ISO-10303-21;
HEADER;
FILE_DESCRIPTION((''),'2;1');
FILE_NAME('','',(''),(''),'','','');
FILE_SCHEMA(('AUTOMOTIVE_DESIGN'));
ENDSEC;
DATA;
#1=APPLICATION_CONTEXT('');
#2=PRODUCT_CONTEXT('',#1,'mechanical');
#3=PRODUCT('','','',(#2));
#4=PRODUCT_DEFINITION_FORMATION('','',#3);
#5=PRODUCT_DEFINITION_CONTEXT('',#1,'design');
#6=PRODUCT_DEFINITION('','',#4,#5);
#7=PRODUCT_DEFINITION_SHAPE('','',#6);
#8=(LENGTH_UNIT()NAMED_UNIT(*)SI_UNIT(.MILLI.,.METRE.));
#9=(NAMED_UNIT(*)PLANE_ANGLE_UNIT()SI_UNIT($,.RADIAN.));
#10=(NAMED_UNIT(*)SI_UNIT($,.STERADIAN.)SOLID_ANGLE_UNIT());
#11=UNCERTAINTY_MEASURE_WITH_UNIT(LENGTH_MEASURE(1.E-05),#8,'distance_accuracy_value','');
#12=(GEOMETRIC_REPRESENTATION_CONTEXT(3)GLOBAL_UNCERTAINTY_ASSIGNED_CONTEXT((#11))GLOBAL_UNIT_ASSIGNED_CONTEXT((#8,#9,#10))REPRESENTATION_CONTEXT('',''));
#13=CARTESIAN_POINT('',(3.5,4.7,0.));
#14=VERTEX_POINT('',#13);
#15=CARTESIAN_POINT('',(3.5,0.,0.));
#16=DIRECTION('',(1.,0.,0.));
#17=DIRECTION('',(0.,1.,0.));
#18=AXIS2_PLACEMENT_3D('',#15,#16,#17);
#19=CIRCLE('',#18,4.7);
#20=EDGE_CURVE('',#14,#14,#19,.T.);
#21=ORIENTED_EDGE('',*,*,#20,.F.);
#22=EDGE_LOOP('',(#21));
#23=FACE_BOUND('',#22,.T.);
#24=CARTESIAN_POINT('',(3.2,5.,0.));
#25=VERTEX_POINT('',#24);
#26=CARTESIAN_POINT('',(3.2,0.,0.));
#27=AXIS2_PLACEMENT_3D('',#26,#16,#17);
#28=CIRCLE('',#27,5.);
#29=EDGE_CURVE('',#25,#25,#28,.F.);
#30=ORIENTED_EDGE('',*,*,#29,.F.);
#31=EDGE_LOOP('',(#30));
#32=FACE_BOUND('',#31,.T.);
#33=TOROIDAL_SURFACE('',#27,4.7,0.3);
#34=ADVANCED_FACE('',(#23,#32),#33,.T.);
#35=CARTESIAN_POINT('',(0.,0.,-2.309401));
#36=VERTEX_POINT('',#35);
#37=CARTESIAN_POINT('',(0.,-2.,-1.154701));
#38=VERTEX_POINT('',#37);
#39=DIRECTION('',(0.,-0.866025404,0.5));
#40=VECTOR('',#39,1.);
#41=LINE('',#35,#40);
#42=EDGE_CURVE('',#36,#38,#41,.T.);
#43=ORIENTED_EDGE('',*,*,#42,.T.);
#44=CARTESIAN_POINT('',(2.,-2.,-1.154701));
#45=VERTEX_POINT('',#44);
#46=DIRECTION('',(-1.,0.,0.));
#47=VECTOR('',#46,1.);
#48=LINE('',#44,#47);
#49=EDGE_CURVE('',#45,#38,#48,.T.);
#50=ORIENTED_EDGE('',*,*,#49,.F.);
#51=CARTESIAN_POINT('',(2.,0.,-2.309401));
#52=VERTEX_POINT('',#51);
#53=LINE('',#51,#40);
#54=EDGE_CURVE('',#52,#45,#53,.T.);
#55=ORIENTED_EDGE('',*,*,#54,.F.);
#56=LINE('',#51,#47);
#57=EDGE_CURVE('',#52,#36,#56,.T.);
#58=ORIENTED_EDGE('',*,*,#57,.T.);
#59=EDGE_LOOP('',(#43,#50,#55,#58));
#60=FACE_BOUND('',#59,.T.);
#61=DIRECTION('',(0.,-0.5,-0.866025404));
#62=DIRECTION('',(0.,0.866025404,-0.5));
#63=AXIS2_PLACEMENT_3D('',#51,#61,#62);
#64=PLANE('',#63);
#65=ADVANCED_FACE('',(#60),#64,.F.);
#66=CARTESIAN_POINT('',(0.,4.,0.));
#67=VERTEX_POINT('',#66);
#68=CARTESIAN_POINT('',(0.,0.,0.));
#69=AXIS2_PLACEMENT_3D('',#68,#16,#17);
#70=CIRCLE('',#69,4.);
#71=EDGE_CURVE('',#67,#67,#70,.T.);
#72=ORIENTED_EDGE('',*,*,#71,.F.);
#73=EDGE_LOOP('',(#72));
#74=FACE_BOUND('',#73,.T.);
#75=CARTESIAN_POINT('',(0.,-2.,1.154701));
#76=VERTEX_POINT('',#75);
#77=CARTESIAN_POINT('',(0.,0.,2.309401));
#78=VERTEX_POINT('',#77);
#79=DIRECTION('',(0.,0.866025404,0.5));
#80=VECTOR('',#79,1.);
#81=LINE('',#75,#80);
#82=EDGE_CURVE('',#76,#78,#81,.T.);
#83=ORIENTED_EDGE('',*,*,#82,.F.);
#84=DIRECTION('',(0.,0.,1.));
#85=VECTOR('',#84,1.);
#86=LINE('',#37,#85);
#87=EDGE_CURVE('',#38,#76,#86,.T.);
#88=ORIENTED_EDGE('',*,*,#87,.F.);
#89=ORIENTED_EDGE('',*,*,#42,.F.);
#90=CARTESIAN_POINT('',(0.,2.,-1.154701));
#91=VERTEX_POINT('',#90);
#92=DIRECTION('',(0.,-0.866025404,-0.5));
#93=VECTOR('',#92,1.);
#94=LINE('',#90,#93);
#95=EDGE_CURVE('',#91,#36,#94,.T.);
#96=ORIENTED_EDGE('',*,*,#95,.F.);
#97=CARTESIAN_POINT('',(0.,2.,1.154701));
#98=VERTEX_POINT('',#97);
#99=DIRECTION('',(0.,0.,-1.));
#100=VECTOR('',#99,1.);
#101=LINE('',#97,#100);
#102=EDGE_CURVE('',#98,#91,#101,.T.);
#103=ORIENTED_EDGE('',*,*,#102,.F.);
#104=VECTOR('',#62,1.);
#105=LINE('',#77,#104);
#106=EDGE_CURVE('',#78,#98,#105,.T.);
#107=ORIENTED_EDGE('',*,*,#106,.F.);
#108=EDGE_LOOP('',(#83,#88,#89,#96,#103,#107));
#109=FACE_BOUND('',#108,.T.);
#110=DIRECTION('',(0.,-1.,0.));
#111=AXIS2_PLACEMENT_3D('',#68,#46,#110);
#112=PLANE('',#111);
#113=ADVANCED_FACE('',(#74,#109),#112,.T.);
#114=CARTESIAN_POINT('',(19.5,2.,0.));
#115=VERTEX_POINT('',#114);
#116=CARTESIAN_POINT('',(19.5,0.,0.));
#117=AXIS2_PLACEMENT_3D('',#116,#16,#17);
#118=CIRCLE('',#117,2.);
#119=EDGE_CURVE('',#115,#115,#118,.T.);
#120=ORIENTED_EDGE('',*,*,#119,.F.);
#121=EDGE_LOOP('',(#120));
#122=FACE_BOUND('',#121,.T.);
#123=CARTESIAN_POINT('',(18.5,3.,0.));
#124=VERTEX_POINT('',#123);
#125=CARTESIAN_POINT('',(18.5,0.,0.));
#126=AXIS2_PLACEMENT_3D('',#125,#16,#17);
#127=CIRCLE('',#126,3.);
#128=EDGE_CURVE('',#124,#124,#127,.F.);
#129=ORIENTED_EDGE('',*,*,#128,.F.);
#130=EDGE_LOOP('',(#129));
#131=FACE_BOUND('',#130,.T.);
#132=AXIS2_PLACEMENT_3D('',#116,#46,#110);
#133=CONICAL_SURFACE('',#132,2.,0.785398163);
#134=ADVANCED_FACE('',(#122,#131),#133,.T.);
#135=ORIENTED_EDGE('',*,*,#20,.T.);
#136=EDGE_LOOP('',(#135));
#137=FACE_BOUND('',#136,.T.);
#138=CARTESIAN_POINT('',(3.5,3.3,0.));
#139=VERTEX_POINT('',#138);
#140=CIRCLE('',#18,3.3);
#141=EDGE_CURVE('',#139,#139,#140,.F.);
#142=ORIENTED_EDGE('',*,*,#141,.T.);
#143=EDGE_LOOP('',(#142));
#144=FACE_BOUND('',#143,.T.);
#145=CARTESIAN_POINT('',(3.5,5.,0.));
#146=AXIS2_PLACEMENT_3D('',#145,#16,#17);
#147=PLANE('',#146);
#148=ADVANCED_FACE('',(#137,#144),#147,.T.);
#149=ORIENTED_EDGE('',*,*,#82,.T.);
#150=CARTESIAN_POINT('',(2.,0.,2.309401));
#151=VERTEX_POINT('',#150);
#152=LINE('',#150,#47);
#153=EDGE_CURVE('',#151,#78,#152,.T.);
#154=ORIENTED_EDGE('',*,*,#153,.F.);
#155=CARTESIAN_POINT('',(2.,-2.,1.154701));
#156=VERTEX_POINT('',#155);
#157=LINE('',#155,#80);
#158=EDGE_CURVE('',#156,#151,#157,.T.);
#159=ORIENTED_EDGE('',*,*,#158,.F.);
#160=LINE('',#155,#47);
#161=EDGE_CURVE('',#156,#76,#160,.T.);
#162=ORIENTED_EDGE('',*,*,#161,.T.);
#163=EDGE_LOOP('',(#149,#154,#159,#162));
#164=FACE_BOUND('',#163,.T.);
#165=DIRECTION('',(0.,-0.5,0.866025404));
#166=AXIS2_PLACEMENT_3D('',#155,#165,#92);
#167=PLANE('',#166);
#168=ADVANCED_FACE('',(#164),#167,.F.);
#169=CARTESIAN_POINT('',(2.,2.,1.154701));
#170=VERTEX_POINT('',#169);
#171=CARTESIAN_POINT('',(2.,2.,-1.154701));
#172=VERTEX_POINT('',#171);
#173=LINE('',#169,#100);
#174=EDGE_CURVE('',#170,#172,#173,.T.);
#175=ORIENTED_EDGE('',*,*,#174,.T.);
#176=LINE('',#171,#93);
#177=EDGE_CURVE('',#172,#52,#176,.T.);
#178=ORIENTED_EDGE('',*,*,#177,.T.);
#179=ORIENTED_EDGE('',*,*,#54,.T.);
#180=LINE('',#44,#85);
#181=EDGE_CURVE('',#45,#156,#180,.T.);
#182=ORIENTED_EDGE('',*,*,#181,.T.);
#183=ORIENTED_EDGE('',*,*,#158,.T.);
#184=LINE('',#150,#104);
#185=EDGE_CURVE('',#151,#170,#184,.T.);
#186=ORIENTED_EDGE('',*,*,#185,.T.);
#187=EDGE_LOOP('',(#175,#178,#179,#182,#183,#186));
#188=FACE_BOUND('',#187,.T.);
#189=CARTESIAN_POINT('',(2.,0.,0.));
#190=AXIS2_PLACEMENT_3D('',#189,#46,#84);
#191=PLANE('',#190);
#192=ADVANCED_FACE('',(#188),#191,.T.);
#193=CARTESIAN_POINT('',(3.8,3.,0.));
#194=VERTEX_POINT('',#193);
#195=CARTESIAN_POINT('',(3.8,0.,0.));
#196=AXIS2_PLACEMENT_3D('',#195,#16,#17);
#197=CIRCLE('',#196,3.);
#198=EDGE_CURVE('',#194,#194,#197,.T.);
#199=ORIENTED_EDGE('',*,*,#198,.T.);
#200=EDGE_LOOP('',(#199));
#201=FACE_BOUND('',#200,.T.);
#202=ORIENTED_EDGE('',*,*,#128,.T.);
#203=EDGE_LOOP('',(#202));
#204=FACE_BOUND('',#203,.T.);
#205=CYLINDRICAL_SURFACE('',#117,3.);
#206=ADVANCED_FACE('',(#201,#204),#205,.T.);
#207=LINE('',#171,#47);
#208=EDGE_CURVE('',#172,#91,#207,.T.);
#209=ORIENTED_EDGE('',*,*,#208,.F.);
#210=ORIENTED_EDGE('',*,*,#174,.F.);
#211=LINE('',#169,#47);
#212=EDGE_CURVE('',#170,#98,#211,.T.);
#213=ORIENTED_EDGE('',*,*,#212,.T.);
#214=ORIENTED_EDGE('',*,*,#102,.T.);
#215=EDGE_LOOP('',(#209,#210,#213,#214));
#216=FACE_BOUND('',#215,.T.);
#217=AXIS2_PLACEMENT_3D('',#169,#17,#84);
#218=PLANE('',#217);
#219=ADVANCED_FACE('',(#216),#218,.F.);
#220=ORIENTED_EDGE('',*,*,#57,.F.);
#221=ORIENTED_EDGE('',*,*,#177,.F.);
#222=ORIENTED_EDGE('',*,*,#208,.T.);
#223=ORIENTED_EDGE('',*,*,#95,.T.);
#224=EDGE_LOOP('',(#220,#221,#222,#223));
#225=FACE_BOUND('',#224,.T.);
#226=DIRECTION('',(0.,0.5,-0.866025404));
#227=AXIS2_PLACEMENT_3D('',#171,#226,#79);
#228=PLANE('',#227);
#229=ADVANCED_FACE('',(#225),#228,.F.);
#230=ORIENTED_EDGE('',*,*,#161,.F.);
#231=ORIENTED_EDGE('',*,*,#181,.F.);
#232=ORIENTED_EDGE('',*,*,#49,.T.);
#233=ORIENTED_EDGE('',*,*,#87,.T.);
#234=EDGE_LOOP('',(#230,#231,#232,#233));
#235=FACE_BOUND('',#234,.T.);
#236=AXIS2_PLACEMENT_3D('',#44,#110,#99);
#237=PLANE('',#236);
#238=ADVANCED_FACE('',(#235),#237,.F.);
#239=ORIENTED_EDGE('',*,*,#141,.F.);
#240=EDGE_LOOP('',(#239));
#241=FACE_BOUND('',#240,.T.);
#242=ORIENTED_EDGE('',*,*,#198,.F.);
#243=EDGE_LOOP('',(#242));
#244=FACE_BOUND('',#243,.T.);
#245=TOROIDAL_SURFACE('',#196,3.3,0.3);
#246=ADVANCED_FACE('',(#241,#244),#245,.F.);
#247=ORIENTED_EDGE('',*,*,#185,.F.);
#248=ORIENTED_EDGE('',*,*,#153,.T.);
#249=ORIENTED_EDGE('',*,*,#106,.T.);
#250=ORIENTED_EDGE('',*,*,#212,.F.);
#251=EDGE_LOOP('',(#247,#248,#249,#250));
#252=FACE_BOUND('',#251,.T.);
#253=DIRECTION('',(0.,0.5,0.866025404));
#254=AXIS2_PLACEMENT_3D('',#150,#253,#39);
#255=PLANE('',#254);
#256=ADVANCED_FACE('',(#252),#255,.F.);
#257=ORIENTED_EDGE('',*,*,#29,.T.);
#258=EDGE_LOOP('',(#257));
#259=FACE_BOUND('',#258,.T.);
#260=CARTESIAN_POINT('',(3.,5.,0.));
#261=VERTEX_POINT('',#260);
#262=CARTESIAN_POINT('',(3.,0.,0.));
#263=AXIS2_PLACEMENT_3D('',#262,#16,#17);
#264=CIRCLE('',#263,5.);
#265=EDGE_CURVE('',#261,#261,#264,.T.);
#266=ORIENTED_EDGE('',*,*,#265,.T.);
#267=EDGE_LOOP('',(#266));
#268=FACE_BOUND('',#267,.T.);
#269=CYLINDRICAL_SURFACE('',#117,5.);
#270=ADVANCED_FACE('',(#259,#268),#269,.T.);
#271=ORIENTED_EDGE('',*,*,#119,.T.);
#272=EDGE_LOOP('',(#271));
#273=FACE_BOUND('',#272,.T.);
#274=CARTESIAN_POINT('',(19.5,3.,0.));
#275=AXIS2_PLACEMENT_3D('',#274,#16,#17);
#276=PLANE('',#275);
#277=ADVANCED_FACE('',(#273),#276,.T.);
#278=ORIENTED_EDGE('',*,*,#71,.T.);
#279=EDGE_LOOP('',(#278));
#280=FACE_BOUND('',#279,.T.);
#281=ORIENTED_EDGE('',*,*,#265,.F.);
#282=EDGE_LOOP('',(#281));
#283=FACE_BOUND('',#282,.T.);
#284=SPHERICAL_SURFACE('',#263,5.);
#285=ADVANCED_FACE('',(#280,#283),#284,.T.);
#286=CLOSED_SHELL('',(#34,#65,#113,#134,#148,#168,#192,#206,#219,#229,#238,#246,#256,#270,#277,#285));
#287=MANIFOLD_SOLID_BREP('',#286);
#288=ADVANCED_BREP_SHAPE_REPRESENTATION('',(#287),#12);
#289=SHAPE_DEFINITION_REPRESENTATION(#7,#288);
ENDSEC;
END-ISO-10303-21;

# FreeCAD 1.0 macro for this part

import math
import FreeCAD as App
import Part
import Sketcher
from FreeCAD import Vector
Q = App.Units.Quantity


def edges_at(feature, points):
    """Names of the edges that pass closest to the given points."""
    edges = feature.Shape.Edges
    near = lambda p: min(range(len(edges)), key=lambda i: edges[i].distToShape(Part.Vertex(*p))[0])
    return sorted({f"Edge{near(p) + 1}" for p in points})


def add_polygon(sketch, points):
    """Adds a closed chain of lines whose ends are joined by coincident constraints."""
    first, n = sketch.GeometryCount, len(points)
    for a, b in zip(points, points[1:] + points[:1]):
        sketch.addGeometry(Part.LineSegment(App.Vector(*a, 0), App.Vector(*b, 0)), False)
    for i in range(n):
        sketch.addConstraint(Sketcher.Constraint("Coincident", first + i, 2, first + (i + 1) % n, 1))

doc = App.newDocument("Part")
body = doc.addObject("PartDesign::Body", "Body")

# Sketch on XY plane
sketch1 = body.newObject("Sketcher::SketchObject", "Sketch")
sketch1.AttachmentSupport = (doc.getObject("XY_Plane"), [""])
sketch1.MapMode = "FlatFace"
sketch1.addGeometry([
    Part.LineSegment(Vector(0, 4, 0), Vector(0, 0, 0)),  # 0
    Part.LineSegment(Vector(0, 0, 0), Vector(19.5, 0, 0)),  # 1
    Part.LineSegment(Vector(19.5, 0, 0), Vector(19.5, 3, 0)),  # 2
    Part.LineSegment(Vector(19.5, 3, 0), Vector(3.5, 3, 0)),  # 3
    Part.LineSegment(Vector(3.5, 3, 0), Vector(3.5, 5, 0)),  # 4
    Part.LineSegment(Vector(3.5, 5, 0), Vector(3, 5, 0)),  # 5
    Part.ArcOfCircle(Part.Circle(Vector(3, 0, 0), Vector(0, 0, 1), 5), math.radians(90), math.radians(127)),  # 6
], False)
sketch1.addConstraint([
    Sketcher.Constraint("Coincident", 0, 2, 1, 1),
    Sketcher.Constraint("Coincident", 1, 2, 2, 1),
    Sketcher.Constraint("Coincident", 2, 2, 3, 1),
    Sketcher.Constraint("Coincident", 3, 2, 4, 1),
    Sketcher.Constraint("Coincident", 4, 2, 5, 1),
    Sketcher.Constraint("Tangent", 5, 2, 6, 1),
    Sketcher.Constraint("Coincident", 6, 2, 0, 1),
    Sketcher.Constraint("Vertical", 0),
    Sketcher.Constraint("Horizontal", 1),
    Sketcher.Constraint("Vertical", 2),
    Sketcher.Constraint("Horizontal", 3),
    Sketcher.Constraint("Vertical", 4),
    Sketcher.Constraint("Horizontal", 5),
    Sketcher.Constraint("Coincident", 0, 2, -1, 1),
    Sketcher.Constraint("PointOnObject", 6, 3, -1),
    Sketcher.Constraint("Radius", 6, 5.0),
    Sketcher.Constraint("DistanceX", 3, 2, 3, 1, 16.0),
    Sketcher.Constraint("DistanceY", 0, 2, 0, 1, 4.0),
    Sketcher.Constraint("DistanceY", 2, 1, 2, 2, 3.0),
    Sketcher.Constraint("DistanceX", 1, 1, 1, 2, 19.5),
])
revolution = body.newObject("PartDesign::Revolution", "Revolution")
revolution.Profile = sketch1
revolution.ReferenceAxis = (sketch1, ["H_Axis"])
revolution.Angle = 360

# Sketch on YZ plane
sketch2 = body.newObject("Sketcher::SketchObject", "Sketch001")
sketch2.AttachmentSupport = (doc.getObject("YZ_Plane"), [""])
sketch2.MapMode = "FlatFace"
add_polygon(sketch2, [(2, 1.2), (2, -1.2), (0, -2.3), (-2, -1.2), (-2, 1.2), (0, 2.3)])  # lines 0-5
sketch2.addConstraint([
    Sketcher.Constraint("Vertical", 0),
    Sketcher.Constraint("Vertical", 3),
    Sketcher.Constraint("Symmetric", 0, 2, 3, 2, -1, 1),
    Sketcher.Constraint("Symmetric", 1, 2, 4, 2, -1, 1),
    Sketcher.Constraint("PointOnObject", 1, 2, -2),
    Sketcher.Constraint("Parallel", 2, 5),
    Sketcher.Constraint("Horizontal", 0, 2, 2, 2),
    Sketcher.Constraint("Angle", 1, Q("-150 deg")),
    Sketcher.Constraint("DistanceX", -1, 1, 0, 2, 2.0),
    Sketcher.Constraint("DistanceY", 0, 2, 0, 1, 2.309401),
])
pocket1 = body.newObject("PartDesign::Pocket", "Pocket")
pocket1.Profile = sketch2
pocket1.Length = 2
pocket1.Reversed = True
doc.recompute()

fillet = body.newObject("PartDesign::Fillet", "Fillet")
fillet.Base = (pocket1, edges_at(pocket1, [(3.5, -3, 0), (3.5, -5, 0)]))
fillet.Radius = 0.3
doc.recompute()

chamfer = body.newObject("PartDesign::Chamfer", "Chamfer")
chamfer.Base = (fillet, edges_at(fillet, [(19.5, -3, 0)]))
chamfer.Size = 1

doc.recompute()
